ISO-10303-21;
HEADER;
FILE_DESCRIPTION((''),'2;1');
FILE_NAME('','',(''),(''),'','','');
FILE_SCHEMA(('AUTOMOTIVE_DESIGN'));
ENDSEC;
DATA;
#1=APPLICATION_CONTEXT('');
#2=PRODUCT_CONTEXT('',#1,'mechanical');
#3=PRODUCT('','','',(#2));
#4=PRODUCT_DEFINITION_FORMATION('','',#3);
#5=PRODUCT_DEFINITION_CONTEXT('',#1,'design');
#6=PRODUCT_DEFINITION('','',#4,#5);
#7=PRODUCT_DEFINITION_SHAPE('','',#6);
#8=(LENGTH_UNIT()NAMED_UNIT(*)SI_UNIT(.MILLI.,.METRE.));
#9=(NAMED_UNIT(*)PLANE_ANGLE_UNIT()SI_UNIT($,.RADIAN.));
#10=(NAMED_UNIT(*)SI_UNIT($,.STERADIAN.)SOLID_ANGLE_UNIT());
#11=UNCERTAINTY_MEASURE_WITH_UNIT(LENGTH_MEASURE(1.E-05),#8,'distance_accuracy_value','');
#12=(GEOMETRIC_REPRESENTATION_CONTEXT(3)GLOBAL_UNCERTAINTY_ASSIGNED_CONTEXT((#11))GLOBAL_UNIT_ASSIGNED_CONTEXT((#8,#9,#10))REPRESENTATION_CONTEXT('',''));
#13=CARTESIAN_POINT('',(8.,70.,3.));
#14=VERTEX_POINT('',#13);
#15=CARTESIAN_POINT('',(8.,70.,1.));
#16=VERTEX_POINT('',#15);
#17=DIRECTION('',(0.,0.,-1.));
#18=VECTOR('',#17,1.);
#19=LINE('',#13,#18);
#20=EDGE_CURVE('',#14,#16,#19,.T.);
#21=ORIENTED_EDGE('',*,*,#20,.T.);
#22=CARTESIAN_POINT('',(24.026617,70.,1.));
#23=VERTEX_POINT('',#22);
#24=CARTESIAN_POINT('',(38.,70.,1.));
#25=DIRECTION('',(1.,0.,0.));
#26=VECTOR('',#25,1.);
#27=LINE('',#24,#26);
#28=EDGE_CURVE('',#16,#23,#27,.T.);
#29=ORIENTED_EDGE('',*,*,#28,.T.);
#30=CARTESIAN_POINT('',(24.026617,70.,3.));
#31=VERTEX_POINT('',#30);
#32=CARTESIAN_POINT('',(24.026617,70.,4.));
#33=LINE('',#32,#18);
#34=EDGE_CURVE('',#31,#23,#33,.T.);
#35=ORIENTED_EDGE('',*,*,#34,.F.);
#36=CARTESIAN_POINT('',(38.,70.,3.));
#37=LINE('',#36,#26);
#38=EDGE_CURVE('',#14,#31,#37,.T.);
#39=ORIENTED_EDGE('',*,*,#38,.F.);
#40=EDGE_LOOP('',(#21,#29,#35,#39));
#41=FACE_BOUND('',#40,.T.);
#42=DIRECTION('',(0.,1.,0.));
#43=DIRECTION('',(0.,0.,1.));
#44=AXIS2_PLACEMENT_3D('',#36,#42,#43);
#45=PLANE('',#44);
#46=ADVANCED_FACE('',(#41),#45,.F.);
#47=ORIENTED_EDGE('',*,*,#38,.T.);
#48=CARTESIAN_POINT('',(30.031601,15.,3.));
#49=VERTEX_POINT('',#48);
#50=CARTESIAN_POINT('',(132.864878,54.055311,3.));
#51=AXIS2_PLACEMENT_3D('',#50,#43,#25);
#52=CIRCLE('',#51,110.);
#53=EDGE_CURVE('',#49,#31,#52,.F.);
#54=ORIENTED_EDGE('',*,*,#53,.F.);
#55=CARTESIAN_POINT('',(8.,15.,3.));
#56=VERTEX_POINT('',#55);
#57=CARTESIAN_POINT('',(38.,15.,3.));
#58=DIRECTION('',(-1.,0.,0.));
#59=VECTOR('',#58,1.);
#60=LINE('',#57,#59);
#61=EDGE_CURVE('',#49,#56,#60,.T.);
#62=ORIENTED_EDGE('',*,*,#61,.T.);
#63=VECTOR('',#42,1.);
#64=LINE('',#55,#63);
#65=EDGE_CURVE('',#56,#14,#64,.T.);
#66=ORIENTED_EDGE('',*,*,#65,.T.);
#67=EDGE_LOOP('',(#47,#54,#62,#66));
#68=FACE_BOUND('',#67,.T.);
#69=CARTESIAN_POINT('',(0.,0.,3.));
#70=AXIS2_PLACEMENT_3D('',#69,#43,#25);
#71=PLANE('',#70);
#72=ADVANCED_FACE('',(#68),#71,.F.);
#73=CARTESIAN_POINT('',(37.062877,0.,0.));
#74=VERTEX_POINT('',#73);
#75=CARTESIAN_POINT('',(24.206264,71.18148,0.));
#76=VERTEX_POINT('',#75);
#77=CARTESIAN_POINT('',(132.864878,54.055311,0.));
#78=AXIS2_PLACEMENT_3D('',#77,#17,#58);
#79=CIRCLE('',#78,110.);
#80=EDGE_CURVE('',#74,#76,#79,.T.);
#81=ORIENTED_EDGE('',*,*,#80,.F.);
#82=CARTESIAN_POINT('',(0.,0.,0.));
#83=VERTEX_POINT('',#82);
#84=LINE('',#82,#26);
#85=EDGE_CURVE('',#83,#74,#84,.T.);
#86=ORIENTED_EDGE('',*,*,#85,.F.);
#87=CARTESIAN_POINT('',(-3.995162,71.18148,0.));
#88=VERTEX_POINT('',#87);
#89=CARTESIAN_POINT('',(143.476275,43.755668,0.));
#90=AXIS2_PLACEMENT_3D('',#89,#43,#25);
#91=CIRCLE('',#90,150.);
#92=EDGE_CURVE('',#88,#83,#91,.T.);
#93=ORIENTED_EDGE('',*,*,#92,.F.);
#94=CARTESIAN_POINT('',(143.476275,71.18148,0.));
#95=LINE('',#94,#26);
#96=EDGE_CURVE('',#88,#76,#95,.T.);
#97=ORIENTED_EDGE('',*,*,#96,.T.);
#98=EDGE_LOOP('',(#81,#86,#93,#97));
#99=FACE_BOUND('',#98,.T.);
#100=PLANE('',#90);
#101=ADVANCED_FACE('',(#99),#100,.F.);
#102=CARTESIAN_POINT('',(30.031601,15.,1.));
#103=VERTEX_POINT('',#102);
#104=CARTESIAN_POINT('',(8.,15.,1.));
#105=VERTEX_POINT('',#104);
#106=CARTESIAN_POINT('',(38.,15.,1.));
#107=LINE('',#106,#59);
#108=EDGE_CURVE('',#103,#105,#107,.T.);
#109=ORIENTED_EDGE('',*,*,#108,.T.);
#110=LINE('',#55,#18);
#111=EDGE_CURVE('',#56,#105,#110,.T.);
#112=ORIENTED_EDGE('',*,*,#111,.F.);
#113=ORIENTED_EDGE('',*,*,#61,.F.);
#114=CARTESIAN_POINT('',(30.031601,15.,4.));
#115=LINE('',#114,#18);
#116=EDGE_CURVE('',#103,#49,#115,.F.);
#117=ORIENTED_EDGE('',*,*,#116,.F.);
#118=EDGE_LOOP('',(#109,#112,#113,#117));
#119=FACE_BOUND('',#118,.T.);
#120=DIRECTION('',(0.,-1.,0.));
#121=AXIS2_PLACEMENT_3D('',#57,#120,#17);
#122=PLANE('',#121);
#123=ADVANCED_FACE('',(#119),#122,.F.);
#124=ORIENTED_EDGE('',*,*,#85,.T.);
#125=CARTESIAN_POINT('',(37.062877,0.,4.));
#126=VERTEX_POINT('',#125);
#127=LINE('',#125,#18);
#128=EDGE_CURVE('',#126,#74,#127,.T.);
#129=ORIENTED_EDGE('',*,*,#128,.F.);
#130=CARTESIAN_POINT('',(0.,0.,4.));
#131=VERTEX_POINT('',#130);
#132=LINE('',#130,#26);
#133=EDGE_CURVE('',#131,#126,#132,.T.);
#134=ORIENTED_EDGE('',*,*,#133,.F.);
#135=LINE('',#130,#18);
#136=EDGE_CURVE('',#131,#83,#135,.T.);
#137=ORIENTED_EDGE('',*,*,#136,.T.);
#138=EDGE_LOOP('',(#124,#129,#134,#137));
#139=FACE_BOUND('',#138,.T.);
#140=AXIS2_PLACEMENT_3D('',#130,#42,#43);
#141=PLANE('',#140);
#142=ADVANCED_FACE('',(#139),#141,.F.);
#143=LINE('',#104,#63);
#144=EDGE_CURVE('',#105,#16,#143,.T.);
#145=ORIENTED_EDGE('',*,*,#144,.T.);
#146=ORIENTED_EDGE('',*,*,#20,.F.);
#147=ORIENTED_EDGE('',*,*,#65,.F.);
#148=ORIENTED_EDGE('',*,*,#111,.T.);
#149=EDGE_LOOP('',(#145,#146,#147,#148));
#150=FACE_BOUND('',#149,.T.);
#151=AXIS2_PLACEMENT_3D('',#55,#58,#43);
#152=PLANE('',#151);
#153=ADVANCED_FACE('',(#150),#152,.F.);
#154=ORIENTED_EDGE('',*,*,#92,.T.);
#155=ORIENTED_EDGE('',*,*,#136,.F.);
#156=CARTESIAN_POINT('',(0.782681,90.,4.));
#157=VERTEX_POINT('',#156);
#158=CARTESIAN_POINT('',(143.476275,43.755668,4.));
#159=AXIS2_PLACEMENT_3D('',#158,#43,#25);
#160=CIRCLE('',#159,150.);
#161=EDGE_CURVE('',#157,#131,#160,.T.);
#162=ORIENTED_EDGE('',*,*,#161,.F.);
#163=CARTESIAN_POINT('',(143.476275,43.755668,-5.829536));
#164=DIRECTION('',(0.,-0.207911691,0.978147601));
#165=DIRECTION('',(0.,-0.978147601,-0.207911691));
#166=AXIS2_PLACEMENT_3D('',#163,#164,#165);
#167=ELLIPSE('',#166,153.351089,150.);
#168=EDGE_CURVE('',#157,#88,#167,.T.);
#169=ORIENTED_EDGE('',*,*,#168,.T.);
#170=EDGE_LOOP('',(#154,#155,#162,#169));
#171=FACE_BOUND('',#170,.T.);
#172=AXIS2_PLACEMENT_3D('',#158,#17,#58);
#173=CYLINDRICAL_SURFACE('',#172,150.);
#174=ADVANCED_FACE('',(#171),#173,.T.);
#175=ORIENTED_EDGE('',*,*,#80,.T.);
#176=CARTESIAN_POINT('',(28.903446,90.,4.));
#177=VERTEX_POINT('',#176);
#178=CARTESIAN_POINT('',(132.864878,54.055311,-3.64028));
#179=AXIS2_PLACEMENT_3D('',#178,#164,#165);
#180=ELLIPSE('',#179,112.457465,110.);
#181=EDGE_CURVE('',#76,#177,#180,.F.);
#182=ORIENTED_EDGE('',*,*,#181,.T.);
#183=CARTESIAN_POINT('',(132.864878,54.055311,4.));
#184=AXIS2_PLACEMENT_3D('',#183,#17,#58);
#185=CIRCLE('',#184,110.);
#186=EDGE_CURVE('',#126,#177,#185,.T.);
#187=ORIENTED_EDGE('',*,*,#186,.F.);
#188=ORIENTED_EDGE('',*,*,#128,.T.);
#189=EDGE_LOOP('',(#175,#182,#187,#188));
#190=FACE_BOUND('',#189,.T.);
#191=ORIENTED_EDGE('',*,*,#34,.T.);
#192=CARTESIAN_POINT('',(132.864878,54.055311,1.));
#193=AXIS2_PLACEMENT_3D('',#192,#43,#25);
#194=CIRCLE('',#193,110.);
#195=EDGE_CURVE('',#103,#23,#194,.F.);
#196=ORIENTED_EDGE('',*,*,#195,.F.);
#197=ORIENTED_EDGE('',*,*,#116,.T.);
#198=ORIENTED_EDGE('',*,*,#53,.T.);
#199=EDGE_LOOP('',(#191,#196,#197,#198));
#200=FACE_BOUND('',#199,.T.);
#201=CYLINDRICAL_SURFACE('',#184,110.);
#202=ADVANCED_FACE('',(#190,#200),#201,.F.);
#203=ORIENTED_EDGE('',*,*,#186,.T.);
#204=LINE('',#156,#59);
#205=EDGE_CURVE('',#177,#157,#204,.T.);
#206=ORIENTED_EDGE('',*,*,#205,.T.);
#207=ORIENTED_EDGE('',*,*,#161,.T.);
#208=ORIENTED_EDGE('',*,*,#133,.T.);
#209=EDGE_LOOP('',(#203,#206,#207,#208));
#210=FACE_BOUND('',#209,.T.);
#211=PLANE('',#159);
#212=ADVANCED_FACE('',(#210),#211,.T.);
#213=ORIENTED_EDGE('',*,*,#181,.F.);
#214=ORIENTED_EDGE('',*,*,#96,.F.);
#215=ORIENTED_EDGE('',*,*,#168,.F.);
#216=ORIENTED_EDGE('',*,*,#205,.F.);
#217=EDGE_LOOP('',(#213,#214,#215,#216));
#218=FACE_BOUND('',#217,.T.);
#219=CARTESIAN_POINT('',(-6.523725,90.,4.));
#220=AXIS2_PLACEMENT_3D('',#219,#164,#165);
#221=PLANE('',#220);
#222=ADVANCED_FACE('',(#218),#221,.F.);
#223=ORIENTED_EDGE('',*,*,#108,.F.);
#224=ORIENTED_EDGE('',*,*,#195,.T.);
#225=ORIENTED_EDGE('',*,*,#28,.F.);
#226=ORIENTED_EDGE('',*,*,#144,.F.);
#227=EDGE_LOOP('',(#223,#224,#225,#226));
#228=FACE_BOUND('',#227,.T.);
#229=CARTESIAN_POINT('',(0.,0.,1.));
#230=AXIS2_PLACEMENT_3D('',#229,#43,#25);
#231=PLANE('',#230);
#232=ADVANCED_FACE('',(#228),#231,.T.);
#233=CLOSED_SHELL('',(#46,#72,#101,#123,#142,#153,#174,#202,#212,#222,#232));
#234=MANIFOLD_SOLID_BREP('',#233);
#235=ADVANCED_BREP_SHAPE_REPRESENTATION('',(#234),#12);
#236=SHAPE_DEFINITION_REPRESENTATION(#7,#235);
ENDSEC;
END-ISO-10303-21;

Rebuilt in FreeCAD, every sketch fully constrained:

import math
import FreeCAD as App
import Part
import Sketcher
Q = App.Units.Quantity

doc = App.newDocument("Part")
body = doc.addObject("PartDesign::Body", "Body")

# Sketch on XY plane
sketch1 = body.newObject("Sketcher::SketchObject", "Sketch")
sketch1.AttachmentSupport = (doc.getObject("XY_Plane"), [""])
sketch1.MapMode = "FlatFace"
sketch1.addGeometry(Part.LineSegment(App.Vector(0, 0, 0), App.Vector(37, 0, 0)), False)
sketch1.addGeometry(Part.ArcOfCircle(Part.Circle(App.Vector(133, 54, 0), App.Vector(0, 0, 1), 110), math.radians(161), math.radians(209)), False)
sketch1.addGeometry(Part.LineSegment(App.Vector(29, 90, 0), App.Vector(1, 90, 0)), False)
sketch1.addGeometry(Part.ArcOfCircle(Part.Circle(App.Vector(143, 44, 0), App.Vector(0, 0, 1), 150), math.radians(162), math.radians(197)), False)
sketch1.addConstraint(Sketcher.Constraint("Coincident", 0, 2, 1, 2))
sketch1.addConstraint(Sketcher.Constraint("Coincident", 1, 1, 2, 1))
sketch1.addConstraint(Sketcher.Constraint("Coincident", 2, 2, 3, 1))
sketch1.addConstraint(Sketcher.Constraint("Coincident", 3, 2, 0, 1))
sketch1.addConstraint(Sketcher.Constraint("Horizontal", 0))
sketch1.addConstraint(Sketcher.Constraint("Horizontal", 2))
sketch1.addConstraint(Sketcher.Constraint("Coincident", 3, 2, -1, 1))
sketch1.addConstraint(Sketcher.Constraint("Radius", 1, Q("110 mm")))
sketch1.addConstraint(Sketcher.Constraint("Radius", 3, Q("150 mm")))
sketch1.addConstraint(Sketcher.Constraint("DistanceY", -1, 1, 1, 1, Q("90 mm")))
sketch1.addConstraint(Sketcher.Constraint("DistanceX", 0, 2, 1, 3, Q("95.802001 mm")))
sketch1.addConstraint(Sketcher.Constraint("DistanceX", 0, 2, 3, 3, Q("106.413399 mm")))
sketch1.addConstraint(Sketcher.Constraint("DistanceX", 0, 1, 0, 2, Q("37.062877 mm")))
pad1 = body.newObject("PartDesign::Pad", "Pad")
pad1.Profile = sketch1
pad1.Length = 4

# Sketch on YZ plane
sketch2 = body.newObject("Sketcher::SketchObject", "Sketch001")
sketch2.AttachmentSupport = (doc.getObject("YZ_Plane"), [""])
sketch2.MapMode = "FlatFace"
sketch2.addGeometry(Part.LineSegment(App.Vector(90, 0, 0), App.Vector(90, 4, 0)), False)
sketch2.addGeometry(Part.LineSegment(App.Vector(90, 4, 0), App.Vector(71.2, 0, 0)), False)
sketch2.addGeometry(Part.LineSegment(App.Vector(71.2, 0, 0), App.Vector(90, 0, 0)), False)
sketch2.addConstraint(Sketcher.Constraint("Coincident", 0, 2, 1, 1))
sketch2.addConstraint(Sketcher.Constraint("Coincident", 1, 2, 2, 1))
sketch2.addConstraint(Sketcher.Constraint("Coincident", 2, 2, 0, 1))
sketch2.addConstraint(Sketcher.Constraint("Vertical", 0))
sketch2.addConstraint(Sketcher.Constraint("Horizontal", 2))
sketch2.addConstraint(Sketcher.Constraint("PointOnObject", 1, 2, -1))
sketch2.addConstraint(Sketcher.Constraint("DistanceY", 0, 1, 0, 2, Q("4 mm")))
sketch2.addConstraint(Sketcher.Constraint("Angle", 1, Q("-168 deg")))
sketch2.addConstraint(Sketcher.Constraint("DistanceX", -1, 1, 0, 2, Q("90 mm")))
pocket1 = body.newObject("PartDesign::Pocket", "Pocket")
pocket1.Profile = sketch2
pocket1.Type = "ThroughAll"
pocket1.Midplane = True

# Sketch on XY plane
sketch3 = body.newObject("Sketcher::SketchObject", "Sketch002")
sketch3.AttachmentSupport = (doc.getObject("XY_Plane"), [""])
sketch3.MapMode = "FlatFace"
sketch3.AttachmentOffset = App.Placement(App.Vector(0, 0, 2), App.Rotation())
sketch3.addGeometry(Part.LineSegment(App.Vector(38, 70, 0), App.Vector(38, 15, 0)), False)
sketch3.addGeometry(Part.LineSegment(App.Vector(38, 15, 0), App.Vector(8, 15, 0)), False)
sketch3.addGeometry(Part.LineSegment(App.Vector(8, 15, 0), App.Vector(8, 70, 0)), False)
sketch3.addGeometry(Part.LineSegment(App.Vector(8, 70, 0), App.Vector(38, 70, 0)), False)
sketch3.addConstraint(Sketcher.Constraint("Coincident", 0, 2, 1, 1))
sketch3.addConstraint(Sketcher.Constraint("Coincident", 1, 2, 2, 1))
sketch3.addConstraint(Sketcher.Constraint("Coincident", 2, 2, 3, 1))
sketch3.addConstraint(Sketcher.Constraint("Coincident", 3, 2, 0, 1))
sketch3.addConstraint(Sketcher.Constraint("Vertical", 0))
sketch3.addConstraint(Sketcher.Constraint("Horizontal", 1))
sketch3.addConstraint(Sketcher.Constraint("Vertical", 2))
sketch3.addConstraint(Sketcher.Constraint("Horizontal", 3))
sketch3.addConstraint(Sketcher.Constraint("DistanceX", 1, 2, 1, 1, Q("30 mm")))
sketch3.addConstraint(Sketcher.Constraint("DistanceY", 0, 2, 0, 1, Q("55 mm")))
sketch3.addConstraint(Sketcher.Constraint("DistanceX", -1, 1, 0, 2, Q("38 mm")))
sketch3.addConstraint(Sketcher.Constraint("DistanceY", -1, 1, 0, 2, Q("15 mm")))
pocket2 = body.newObject("PartDesign::Pocket", "Pocket001")
pocket2.Profile = sketch3
pocket2.Length = 2
pocket2.Midplane = True

doc.recompute()
